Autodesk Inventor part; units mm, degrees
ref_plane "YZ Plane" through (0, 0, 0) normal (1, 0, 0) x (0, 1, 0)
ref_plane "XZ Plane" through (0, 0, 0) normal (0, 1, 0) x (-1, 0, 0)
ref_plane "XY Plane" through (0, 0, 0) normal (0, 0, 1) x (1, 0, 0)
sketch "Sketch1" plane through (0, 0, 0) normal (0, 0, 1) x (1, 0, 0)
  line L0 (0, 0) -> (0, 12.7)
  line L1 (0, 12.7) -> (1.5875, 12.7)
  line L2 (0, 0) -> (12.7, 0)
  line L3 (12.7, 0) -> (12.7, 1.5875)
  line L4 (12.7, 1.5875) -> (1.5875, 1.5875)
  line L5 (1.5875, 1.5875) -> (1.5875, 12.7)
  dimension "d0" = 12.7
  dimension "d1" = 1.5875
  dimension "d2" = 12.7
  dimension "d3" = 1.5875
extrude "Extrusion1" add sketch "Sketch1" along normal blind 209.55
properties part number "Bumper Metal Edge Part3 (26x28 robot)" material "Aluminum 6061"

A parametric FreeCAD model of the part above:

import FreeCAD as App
import Part
import Sketcher
from FreeCAD import Vector
Q = App.Units.Quantity

doc = App.newDocument("Part")
body = doc.addObject("PartDesign::Body", "Body")

sketch1 = body.newObject("Sketcher::SketchObject", "Sketch")
sketch1.AttachmentSupport = (doc.getObject("XY_Plane"), [""])
sketch1.MapMode = "FlatFace"
sketch1.addGeometry(Part.LineSegment(Vector(0, 12.7, 0), Vector(0, 0, 0)), False)
sketch1.addGeometry(Part.LineSegment(Vector(0, 0, 0), Vector(12.7, 0, 0)), False)
sketch1.addGeometry(Part.LineSegment(Vector(12.7, 0, 0), Vector(12.7, 1.5875, 0)), False)
sketch1.addGeometry(Part.LineSegment(Vector(12.7, 1.5875, 0), Vector(1.5875, 1.5875, 0)), False)
sketch1.addGeometry(Part.LineSegment(Vector(1.5875, 1.5875, 0), Vector(1.5875, 12.7, 0)), False)
sketch1.addGeometry(Part.LineSegment(Vector(1.5875, 12.7, 0), Vector(0, 12.7, 0)), False)
sketch1.addConstraint(Sketcher.Constraint("Coincident", 0, 2, 1, 1))
sketch1.addConstraint(Sketcher.Constraint("Coincident", 1, 2, 2, 1))
sketch1.addConstraint(Sketcher.Constraint("Coincident", 2, 2, 3, 1))
sketch1.addConstraint(Sketcher.Constraint("Coincident", 3, 2, 4, 1))
sketch1.addConstraint(Sketcher.Constraint("Coincident", 4, 2, 5, 1))
sketch1.addConstraint(Sketcher.Constraint("Coincident", 5, 2, 0, 1))
sketch1.addConstraint(Sketcher.Constraint("Vertical", 0))
sketch1.addConstraint(Sketcher.Constraint("Horizontal", 1))
sketch1.addConstraint(Sketcher.Constraint("Vertical", 2))
sketch1.addConstraint(Sketcher.Constraint("Horizontal", 3))
sketch1.addConstraint(Sketcher.Constraint("Vertical", 4))
sketch1.addConstraint(Sketcher.Constraint("Horizontal", 5))
sketch1.addConstraint(Sketcher.Constraint("Coincident", 0, 2, -1, 1))
sketch1.addConstraint(Sketcher.Constraint("Equal", 1, 0))
sketch1.addConstraint(Sketcher.Constraint("Equal", 5, 2))
sketch1.addConstraint(Sketcher.Constraint("DistanceX", 1, 1, 1, 2, Q("0.5 in")))
sketch1.addConstraint(Sketcher.Constraint("DistanceX", 5, 2, 5, 1, Q("0.0625 in")))
pad1 = body.newObject("PartDesign::Pad", "Pad")
pad1.Profile = sketch1
pad1.Length = Q("8.25 in")

doc.recompute()
